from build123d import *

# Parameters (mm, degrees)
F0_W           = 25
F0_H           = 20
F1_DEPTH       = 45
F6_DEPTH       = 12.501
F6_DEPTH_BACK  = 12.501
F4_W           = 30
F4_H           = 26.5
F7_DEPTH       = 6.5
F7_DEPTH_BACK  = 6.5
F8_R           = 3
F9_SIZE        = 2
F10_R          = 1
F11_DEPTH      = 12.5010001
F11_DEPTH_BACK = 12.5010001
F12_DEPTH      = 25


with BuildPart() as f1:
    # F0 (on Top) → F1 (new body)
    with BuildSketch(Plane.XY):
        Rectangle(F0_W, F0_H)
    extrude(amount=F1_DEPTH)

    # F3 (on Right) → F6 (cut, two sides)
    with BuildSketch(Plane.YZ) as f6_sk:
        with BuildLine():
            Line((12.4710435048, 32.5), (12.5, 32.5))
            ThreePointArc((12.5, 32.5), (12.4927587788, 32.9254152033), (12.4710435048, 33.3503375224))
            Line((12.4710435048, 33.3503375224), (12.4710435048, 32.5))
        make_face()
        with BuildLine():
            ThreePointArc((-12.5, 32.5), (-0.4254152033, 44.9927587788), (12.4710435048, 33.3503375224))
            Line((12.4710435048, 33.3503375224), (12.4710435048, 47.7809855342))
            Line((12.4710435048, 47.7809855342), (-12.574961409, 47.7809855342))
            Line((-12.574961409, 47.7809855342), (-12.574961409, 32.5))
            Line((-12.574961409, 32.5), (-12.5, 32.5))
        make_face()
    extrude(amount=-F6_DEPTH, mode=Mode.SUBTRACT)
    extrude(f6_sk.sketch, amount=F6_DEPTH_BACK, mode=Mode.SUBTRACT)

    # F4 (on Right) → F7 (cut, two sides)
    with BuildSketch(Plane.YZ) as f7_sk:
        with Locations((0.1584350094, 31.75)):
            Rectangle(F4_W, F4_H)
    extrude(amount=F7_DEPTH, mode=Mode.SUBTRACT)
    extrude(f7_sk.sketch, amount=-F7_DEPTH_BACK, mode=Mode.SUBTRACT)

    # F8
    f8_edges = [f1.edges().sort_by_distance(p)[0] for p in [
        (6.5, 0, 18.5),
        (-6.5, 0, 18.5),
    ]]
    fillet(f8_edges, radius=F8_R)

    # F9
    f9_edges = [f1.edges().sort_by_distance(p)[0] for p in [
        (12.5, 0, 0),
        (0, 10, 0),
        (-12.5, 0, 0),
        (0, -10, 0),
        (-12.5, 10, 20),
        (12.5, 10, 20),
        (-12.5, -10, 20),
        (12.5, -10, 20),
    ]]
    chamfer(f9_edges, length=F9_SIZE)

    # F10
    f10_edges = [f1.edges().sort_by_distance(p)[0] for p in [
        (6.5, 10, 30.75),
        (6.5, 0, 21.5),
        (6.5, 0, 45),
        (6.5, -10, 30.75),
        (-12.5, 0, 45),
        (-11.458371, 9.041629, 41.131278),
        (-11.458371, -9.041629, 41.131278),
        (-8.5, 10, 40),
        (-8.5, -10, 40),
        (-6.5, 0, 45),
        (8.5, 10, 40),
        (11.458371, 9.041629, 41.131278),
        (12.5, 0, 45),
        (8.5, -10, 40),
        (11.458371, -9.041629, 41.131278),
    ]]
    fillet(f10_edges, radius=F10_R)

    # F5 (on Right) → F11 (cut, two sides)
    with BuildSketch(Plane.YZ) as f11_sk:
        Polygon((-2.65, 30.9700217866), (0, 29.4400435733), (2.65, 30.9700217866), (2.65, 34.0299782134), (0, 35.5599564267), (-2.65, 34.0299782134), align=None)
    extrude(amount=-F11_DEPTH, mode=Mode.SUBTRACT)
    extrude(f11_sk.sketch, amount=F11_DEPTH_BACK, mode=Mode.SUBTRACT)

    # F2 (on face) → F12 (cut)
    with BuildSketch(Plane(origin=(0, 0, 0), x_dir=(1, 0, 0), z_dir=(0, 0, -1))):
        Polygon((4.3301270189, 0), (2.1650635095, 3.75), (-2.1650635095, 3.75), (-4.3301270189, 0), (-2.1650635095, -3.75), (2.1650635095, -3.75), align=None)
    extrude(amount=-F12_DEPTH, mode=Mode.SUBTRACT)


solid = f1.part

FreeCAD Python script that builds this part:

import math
import FreeCAD as App
import Part
import Sketcher
from FreeCAD import Vector
Q = App.Units.Quantity


def edges_at(feature, points):
    """Names of the edges that pass closest to the given points."""
    edges = feature.Shape.Edges
    near = lambda p: min(range(len(edges)), key=lambda i: edges[i].distToShape(Part.Vertex(*p))[0])
    return sorted({f"Edge{near(p) + 1}" for p in points})


def add_polygon(sketch, points):
    """Adds a closed chain of lines whose ends are joined by coincident constraints."""
    first, n = sketch.GeometryCount, len(points)
    for a, b in zip(points, points[1:] + points[:1]):
        sketch.addGeometry(Part.LineSegment(App.Vector(*a, 0), App.Vector(*b, 0)), False)
    for i in range(n):
        sketch.addConstraint(Sketcher.Constraint("Coincident", first + i, 2, first + (i + 1) % n, 1))

doc = App.newDocument("Part")
params = doc.addObject("Spreadsheet::Sheet", "Params")
for row, (alias, value) in enumerate([
    ("sketch1_width", "25 mm"),
    ("sketch1_height", "20 mm"),
    ("pad1_length", "45 mm"),
    ("sketch2_radius", "12.5 mm"),
    ("sketch3_width", "30 mm"),
    ("sketch3_height", "26.5 mm"),
    ("pocket2_length", "6.5 mm"),
    ("pocket2_length2", "6.5 mm"),
    ("fillet_radius", "3 mm"),
    ("chamfer_size", "2 mm"),
    ("fillet2_radius", "1 mm"),
    ("pocket4_length", "25 mm"),
], start=1):
    params.set(f"A{row}", alias)
    params.set(f"B{row}", "=" + value)
    params.setAlias(f"B{row}", alias)

body = doc.addObject("PartDesign::Body", "Body")

# Sketch on XY plane
sketch1 = body.newObject("Sketcher::SketchObject", "Sketch")
sketch1.AttachmentSupport = (doc.getObject("XY_Plane"), [""])
sketch1.MapMode = "FlatFace"
add_polygon(sketch1, [(-12, 10), (-12, -10), (12, -10), (12, 10)])  # lines 0-3
sketch1.addConstraint([
    Sketcher.Constraint("Vertical", 0),
    Sketcher.Constraint("Horizontal", 1),
    Sketcher.Constraint("Vertical", 2),
    Sketcher.Constraint("Horizontal", 3),
    Sketcher.Constraint("Symmetric", 0, 2, 2, 2, -1, 1),
    Sketcher.Constraint("DistanceX", 1, 1, 1, 2, 25.0),
    Sketcher.Constraint("DistanceY", 0, 2, 0, 1, 20.0),
])
sketch1.setExpression("Constraints[9]", "Params.sketch1_width")
sketch1.setExpression("Constraints[10]", "Params.sketch1_height")
pad1 = body.newObject("PartDesign::Pad", "Pad")
pad1.Profile = sketch1
pad1.setExpression("Length", "Params.pad1_length")

# Sketch on YZ plane
sketch2 = body.newObject("Sketcher::SketchObject", "Sketch001")
sketch2.AttachmentSupport = (doc.getObject("YZ_Plane"), [""])
sketch2.MapMode = "FlatFace"
sketch2.addGeometry([
    Part.LineSegment(Vector(12.471, 32.5, 0), Vector(12.5, 32.5, 0)),  # 0
    Part.ArcOfCircle(Part.Circle(Vector(0, 32.5, 0), Vector(0, 0, 1), 12.5), math.radians(0), math.radians(3.9)),  # 1
    Part.LineSegment(Vector(12.471, 33.35, 0), Vector(12.471, 32.5, 0)),  # 2
    Part.ArcOfCircle(Part.Circle(Vector(0, 32.5, 0), Vector(0, 0, 1), 12.5), math.radians(4), math.radians(180)),  # 3
    Part.LineSegment(Vector(12.471, 33.35, 0), Vector(12.471, 47.781, 0)),  # 4
    Part.LineSegment(Vector(12.471, 47.781, 0), Vector(-12.575, 47.781, 0)),  # 5
    Part.LineSegment(Vector(-12.575, 47.781, 0), Vector(-12.575, 32.5, 0)),  # 6
    Part.LineSegment(Vector(-12.575, 32.5, 0), Vector(-12.5, 32.5, 0)),  # 7
], False)
sketch2.addConstraint([
    Sketcher.Constraint("Coincident", 0, 2, 1, 1),
    Sketcher.Constraint("Coincident", 1, 2, 2, 1),
    Sketcher.Constraint("Coincident", 2, 2, 0, 1),
    Sketcher.Constraint("Coincident", 3, 1, 4, 1),
    Sketcher.Constraint("Coincident", 4, 2, 5, 1),
    Sketcher.Constraint("Coincident", 5, 2, 6, 1),
    Sketcher.Constraint("Coincident", 6, 2, 7, 1),
    Sketcher.Constraint("Coincident", 7, 2, 3, 2),
    Sketcher.Constraint("Horizontal", 0),
    Sketcher.Constraint("Vertical", 2),
    Sketcher.Constraint("Vertical", 4),
    Sketcher.Constraint("Horizontal", 5),
    Sketcher.Constraint("Vertical", 6),
    Sketcher.Constraint("Horizontal", 7),
    Sketcher.Constraint("Coincident", 3, 3, 1, 3),
    Sketcher.Constraint("Coincident", 3, 1, 1, 2),
    Sketcher.Constraint("Symmetric", 0, 2, 7, 2, -2),
    Sketcher.Constraint("Horizontal", 3, 3, 0, 2),
    Sketcher.Constraint("Radius", 1, 12.5),
    Sketcher.Constraint("DistanceY", -1, 1, 1, 3, 32.5),
    Sketcher.Constraint("DistanceX", 7, 1, 7, 2, 0.074961),
    Sketcher.Constraint("DistanceY", 4, 1, 4, 2, 14.430648),
    Sketcher.Constraint("DistanceX", 0, 1, 0, 2, 0.028956),
])
sketch2.setExpression("Constraints[18]", "Params.sketch2_radius")
pocket1 = body.newObject("PartDesign::Pocket", "Pocket")
pocket1.Profile = sketch2
pocket1.Type = "ThroughAll"
pocket1.Midplane = True

# Sketch on YZ plane
sketch3 = body.newObject("Sketcher::SketchObject", "Sketch002")
sketch3.AttachmentSupport = (doc.getObject("YZ_Plane"), [""])
sketch3.MapMode = "FlatFace"
add_polygon(sketch3, [(-15, 45), (-15, 18), (15, 18), (15, 45)])  # lines 0-3
sketch3.addConstraint([
    Sketcher.Constraint("Vertical", 0),
    Sketcher.Constraint("Horizontal", 1),
    Sketcher.Constraint("Vertical", 2),
    Sketcher.Constraint("Horizontal", 3),
    Sketcher.Constraint("DistanceX", 1, 1, 1, 2, 30.0),
    Sketcher.Constraint("DistanceY", 0, 2, 0, 1, 26.5),
    Sketcher.Constraint("DistanceY", -1, 1, 2, 2, 45.0),
    Sketcher.Constraint("DistanceX", 0, 2, -1, 1, 14.841565),
])
sketch3.setExpression("Constraints[8]", "Params.sketch3_width")
sketch3.setExpression("Constraints[9]", "Params.sketch3_height")
pocket2 = body.newObject("PartDesign::Pocket", "Pocket001")
pocket2.Profile = sketch3
pocket2.Type = "TwoLengths"
pocket2.setExpression("Length", "Params.pocket2_length")
pocket2.setExpression("Length2", "Params.pocket2_length2")
pocket2.Reversed = True
doc.recompute()

fillet = body.newObject("PartDesign::Fillet", "Fillet")
fillet.Base = (pocket2, edges_at(pocket2, [(6.5, 0, 18.5), (-6.5, 0, 18.5)]))
fillet.setExpression("Radius", "Params.fillet_radius")
doc.recompute()

chamfer = body.newObject("PartDesign::Chamfer", "Chamfer")
chamfer.Base = (fillet, edges_at(fillet, [
    (12.5, 0, 0),
    (0, 10, 0),
    (-12.5, 0, 0),
    (0, -10, 0),
    (-12.5, 10, 20),
    (12.5, 10, 20),
    (-12.5, -10, 20),
    (12.5, -10, 20),
]))
chamfer.setExpression("Size", "Params.chamfer_size")
doc.recompute()

fillet2 = body.newObject("PartDesign::Fillet", "Fillet001")
fillet2.Base = (chamfer, edges_at(chamfer, [
    (6.5, 10, 30.75),
    (6.5, 0, 21.5),
    (6.5, 0, 45),
    (6.5, -10, 30.75),
    (-12.5, 0, 45),
    (-11.458, 9.042, 41.131),
    (-11.458, -9.042, 41.131),
    (-8.5, 10, 40),
    (-8.5, -10, 40),
    (-6.5, 0, 45),
    (8.5, 10, 40),
    (11.458, 9.042, 41.131),
    (12.5, 0, 45),
    (8.5, -10, 40),
    (11.458, -9.042, 41.131),
]))
fillet2.setExpression("Radius", "Params.fillet2_radius")

# Sketch on YZ plane
sketch4 = body.newObject("Sketcher::SketchObject", "Sketch003")
sketch4.AttachmentSupport = (doc.getObject("YZ_Plane"), [""])
sketch4.MapMode = "FlatFace"
add_polygon(sketch4, [(-2.6, 31), (0, 29.4), (2.6, 31), (2.6, 34), (0, 35.6), (-2.6, 34)])  # lines 0-5
sketch4.addConstraint([
    Sketcher.Constraint("Vertical", 2),
    Sketcher.Constraint("Vertical", 5),
    Sketcher.Constraint("Symmetric", 2, 2, 4, 2, -2),
    Sketcher.Constraint("PointOnObject", 0, 2, -2),
    Sketcher.Constraint("PointOnObject", 3, 2, -2),
    Sketcher.Constraint("Parallel", 0, 3),
    Sketcher.Constraint("Parallel", 1, 4),
    Sketcher.Constraint("Angle", 0, Q("-30 deg")),
    Sketcher.Constraint("DistanceX", 4, 2, 2, 2, 5.3),
    Sketcher.Constraint("DistanceY", 2, 1, 2, 2, 3.059956),
    Sketcher.Constraint("DistanceY", -1, 1, 1, 2, 30.970022),
])
pocket3 = body.newObject("PartDesign::Pocket", "Pocket002")
pocket3.Profile = sketch4
pocket3.Type = "ThroughAll"
pocket3.Midplane = True

# Sketch on XY plane
sketch5 = body.newObject("Sketcher::SketchObject", "Sketch004")
sketch5.AttachmentSupport = (doc.getObject("XY_Plane"), [""])
sketch5.MapMode = "FlatFace"
add_polygon(sketch5, [(4.3, 0), (2.2, -3.8), (-2.2, -3.8), (-4.3, 0), (-2.2, 3.8), (2.2, 3.8)])  # lines 0-5
sketch5.addConstraint([
    Sketcher.Constraint("Horizontal", 1),
    Sketcher.Constraint("Horizontal", 4),
    Sketcher.Constraint("Symmetric", 0, 2, 3, 2, -1, 1),
    Sketcher.Constraint("Symmetric", 2, 2, 5, 2, -1, 1),
    Sketcher.Constraint("PointOnObject", 2, 2, -1),
    Sketcher.Constraint("Parallel", 2, 5),
    Sketcher.Constraint("Vertical", 1, 2, 3, 2),
    Sketcher.Constraint("Angle", 0, Q("-120 deg")),
    Sketcher.Constraint("DistanceY", 1, 2, 3, 2, 7.5),
    Sketcher.Constraint("DistanceX", 1, 2, 1, 1, 4.330127),
])
pocket4 = body.newObject("PartDesign::Pocket", "Pocket003")
pocket4.Profile = sketch5
pocket4.setExpression("Length", "Params.pocket4_length")
pocket4.Reversed = True

doc.recompute()
